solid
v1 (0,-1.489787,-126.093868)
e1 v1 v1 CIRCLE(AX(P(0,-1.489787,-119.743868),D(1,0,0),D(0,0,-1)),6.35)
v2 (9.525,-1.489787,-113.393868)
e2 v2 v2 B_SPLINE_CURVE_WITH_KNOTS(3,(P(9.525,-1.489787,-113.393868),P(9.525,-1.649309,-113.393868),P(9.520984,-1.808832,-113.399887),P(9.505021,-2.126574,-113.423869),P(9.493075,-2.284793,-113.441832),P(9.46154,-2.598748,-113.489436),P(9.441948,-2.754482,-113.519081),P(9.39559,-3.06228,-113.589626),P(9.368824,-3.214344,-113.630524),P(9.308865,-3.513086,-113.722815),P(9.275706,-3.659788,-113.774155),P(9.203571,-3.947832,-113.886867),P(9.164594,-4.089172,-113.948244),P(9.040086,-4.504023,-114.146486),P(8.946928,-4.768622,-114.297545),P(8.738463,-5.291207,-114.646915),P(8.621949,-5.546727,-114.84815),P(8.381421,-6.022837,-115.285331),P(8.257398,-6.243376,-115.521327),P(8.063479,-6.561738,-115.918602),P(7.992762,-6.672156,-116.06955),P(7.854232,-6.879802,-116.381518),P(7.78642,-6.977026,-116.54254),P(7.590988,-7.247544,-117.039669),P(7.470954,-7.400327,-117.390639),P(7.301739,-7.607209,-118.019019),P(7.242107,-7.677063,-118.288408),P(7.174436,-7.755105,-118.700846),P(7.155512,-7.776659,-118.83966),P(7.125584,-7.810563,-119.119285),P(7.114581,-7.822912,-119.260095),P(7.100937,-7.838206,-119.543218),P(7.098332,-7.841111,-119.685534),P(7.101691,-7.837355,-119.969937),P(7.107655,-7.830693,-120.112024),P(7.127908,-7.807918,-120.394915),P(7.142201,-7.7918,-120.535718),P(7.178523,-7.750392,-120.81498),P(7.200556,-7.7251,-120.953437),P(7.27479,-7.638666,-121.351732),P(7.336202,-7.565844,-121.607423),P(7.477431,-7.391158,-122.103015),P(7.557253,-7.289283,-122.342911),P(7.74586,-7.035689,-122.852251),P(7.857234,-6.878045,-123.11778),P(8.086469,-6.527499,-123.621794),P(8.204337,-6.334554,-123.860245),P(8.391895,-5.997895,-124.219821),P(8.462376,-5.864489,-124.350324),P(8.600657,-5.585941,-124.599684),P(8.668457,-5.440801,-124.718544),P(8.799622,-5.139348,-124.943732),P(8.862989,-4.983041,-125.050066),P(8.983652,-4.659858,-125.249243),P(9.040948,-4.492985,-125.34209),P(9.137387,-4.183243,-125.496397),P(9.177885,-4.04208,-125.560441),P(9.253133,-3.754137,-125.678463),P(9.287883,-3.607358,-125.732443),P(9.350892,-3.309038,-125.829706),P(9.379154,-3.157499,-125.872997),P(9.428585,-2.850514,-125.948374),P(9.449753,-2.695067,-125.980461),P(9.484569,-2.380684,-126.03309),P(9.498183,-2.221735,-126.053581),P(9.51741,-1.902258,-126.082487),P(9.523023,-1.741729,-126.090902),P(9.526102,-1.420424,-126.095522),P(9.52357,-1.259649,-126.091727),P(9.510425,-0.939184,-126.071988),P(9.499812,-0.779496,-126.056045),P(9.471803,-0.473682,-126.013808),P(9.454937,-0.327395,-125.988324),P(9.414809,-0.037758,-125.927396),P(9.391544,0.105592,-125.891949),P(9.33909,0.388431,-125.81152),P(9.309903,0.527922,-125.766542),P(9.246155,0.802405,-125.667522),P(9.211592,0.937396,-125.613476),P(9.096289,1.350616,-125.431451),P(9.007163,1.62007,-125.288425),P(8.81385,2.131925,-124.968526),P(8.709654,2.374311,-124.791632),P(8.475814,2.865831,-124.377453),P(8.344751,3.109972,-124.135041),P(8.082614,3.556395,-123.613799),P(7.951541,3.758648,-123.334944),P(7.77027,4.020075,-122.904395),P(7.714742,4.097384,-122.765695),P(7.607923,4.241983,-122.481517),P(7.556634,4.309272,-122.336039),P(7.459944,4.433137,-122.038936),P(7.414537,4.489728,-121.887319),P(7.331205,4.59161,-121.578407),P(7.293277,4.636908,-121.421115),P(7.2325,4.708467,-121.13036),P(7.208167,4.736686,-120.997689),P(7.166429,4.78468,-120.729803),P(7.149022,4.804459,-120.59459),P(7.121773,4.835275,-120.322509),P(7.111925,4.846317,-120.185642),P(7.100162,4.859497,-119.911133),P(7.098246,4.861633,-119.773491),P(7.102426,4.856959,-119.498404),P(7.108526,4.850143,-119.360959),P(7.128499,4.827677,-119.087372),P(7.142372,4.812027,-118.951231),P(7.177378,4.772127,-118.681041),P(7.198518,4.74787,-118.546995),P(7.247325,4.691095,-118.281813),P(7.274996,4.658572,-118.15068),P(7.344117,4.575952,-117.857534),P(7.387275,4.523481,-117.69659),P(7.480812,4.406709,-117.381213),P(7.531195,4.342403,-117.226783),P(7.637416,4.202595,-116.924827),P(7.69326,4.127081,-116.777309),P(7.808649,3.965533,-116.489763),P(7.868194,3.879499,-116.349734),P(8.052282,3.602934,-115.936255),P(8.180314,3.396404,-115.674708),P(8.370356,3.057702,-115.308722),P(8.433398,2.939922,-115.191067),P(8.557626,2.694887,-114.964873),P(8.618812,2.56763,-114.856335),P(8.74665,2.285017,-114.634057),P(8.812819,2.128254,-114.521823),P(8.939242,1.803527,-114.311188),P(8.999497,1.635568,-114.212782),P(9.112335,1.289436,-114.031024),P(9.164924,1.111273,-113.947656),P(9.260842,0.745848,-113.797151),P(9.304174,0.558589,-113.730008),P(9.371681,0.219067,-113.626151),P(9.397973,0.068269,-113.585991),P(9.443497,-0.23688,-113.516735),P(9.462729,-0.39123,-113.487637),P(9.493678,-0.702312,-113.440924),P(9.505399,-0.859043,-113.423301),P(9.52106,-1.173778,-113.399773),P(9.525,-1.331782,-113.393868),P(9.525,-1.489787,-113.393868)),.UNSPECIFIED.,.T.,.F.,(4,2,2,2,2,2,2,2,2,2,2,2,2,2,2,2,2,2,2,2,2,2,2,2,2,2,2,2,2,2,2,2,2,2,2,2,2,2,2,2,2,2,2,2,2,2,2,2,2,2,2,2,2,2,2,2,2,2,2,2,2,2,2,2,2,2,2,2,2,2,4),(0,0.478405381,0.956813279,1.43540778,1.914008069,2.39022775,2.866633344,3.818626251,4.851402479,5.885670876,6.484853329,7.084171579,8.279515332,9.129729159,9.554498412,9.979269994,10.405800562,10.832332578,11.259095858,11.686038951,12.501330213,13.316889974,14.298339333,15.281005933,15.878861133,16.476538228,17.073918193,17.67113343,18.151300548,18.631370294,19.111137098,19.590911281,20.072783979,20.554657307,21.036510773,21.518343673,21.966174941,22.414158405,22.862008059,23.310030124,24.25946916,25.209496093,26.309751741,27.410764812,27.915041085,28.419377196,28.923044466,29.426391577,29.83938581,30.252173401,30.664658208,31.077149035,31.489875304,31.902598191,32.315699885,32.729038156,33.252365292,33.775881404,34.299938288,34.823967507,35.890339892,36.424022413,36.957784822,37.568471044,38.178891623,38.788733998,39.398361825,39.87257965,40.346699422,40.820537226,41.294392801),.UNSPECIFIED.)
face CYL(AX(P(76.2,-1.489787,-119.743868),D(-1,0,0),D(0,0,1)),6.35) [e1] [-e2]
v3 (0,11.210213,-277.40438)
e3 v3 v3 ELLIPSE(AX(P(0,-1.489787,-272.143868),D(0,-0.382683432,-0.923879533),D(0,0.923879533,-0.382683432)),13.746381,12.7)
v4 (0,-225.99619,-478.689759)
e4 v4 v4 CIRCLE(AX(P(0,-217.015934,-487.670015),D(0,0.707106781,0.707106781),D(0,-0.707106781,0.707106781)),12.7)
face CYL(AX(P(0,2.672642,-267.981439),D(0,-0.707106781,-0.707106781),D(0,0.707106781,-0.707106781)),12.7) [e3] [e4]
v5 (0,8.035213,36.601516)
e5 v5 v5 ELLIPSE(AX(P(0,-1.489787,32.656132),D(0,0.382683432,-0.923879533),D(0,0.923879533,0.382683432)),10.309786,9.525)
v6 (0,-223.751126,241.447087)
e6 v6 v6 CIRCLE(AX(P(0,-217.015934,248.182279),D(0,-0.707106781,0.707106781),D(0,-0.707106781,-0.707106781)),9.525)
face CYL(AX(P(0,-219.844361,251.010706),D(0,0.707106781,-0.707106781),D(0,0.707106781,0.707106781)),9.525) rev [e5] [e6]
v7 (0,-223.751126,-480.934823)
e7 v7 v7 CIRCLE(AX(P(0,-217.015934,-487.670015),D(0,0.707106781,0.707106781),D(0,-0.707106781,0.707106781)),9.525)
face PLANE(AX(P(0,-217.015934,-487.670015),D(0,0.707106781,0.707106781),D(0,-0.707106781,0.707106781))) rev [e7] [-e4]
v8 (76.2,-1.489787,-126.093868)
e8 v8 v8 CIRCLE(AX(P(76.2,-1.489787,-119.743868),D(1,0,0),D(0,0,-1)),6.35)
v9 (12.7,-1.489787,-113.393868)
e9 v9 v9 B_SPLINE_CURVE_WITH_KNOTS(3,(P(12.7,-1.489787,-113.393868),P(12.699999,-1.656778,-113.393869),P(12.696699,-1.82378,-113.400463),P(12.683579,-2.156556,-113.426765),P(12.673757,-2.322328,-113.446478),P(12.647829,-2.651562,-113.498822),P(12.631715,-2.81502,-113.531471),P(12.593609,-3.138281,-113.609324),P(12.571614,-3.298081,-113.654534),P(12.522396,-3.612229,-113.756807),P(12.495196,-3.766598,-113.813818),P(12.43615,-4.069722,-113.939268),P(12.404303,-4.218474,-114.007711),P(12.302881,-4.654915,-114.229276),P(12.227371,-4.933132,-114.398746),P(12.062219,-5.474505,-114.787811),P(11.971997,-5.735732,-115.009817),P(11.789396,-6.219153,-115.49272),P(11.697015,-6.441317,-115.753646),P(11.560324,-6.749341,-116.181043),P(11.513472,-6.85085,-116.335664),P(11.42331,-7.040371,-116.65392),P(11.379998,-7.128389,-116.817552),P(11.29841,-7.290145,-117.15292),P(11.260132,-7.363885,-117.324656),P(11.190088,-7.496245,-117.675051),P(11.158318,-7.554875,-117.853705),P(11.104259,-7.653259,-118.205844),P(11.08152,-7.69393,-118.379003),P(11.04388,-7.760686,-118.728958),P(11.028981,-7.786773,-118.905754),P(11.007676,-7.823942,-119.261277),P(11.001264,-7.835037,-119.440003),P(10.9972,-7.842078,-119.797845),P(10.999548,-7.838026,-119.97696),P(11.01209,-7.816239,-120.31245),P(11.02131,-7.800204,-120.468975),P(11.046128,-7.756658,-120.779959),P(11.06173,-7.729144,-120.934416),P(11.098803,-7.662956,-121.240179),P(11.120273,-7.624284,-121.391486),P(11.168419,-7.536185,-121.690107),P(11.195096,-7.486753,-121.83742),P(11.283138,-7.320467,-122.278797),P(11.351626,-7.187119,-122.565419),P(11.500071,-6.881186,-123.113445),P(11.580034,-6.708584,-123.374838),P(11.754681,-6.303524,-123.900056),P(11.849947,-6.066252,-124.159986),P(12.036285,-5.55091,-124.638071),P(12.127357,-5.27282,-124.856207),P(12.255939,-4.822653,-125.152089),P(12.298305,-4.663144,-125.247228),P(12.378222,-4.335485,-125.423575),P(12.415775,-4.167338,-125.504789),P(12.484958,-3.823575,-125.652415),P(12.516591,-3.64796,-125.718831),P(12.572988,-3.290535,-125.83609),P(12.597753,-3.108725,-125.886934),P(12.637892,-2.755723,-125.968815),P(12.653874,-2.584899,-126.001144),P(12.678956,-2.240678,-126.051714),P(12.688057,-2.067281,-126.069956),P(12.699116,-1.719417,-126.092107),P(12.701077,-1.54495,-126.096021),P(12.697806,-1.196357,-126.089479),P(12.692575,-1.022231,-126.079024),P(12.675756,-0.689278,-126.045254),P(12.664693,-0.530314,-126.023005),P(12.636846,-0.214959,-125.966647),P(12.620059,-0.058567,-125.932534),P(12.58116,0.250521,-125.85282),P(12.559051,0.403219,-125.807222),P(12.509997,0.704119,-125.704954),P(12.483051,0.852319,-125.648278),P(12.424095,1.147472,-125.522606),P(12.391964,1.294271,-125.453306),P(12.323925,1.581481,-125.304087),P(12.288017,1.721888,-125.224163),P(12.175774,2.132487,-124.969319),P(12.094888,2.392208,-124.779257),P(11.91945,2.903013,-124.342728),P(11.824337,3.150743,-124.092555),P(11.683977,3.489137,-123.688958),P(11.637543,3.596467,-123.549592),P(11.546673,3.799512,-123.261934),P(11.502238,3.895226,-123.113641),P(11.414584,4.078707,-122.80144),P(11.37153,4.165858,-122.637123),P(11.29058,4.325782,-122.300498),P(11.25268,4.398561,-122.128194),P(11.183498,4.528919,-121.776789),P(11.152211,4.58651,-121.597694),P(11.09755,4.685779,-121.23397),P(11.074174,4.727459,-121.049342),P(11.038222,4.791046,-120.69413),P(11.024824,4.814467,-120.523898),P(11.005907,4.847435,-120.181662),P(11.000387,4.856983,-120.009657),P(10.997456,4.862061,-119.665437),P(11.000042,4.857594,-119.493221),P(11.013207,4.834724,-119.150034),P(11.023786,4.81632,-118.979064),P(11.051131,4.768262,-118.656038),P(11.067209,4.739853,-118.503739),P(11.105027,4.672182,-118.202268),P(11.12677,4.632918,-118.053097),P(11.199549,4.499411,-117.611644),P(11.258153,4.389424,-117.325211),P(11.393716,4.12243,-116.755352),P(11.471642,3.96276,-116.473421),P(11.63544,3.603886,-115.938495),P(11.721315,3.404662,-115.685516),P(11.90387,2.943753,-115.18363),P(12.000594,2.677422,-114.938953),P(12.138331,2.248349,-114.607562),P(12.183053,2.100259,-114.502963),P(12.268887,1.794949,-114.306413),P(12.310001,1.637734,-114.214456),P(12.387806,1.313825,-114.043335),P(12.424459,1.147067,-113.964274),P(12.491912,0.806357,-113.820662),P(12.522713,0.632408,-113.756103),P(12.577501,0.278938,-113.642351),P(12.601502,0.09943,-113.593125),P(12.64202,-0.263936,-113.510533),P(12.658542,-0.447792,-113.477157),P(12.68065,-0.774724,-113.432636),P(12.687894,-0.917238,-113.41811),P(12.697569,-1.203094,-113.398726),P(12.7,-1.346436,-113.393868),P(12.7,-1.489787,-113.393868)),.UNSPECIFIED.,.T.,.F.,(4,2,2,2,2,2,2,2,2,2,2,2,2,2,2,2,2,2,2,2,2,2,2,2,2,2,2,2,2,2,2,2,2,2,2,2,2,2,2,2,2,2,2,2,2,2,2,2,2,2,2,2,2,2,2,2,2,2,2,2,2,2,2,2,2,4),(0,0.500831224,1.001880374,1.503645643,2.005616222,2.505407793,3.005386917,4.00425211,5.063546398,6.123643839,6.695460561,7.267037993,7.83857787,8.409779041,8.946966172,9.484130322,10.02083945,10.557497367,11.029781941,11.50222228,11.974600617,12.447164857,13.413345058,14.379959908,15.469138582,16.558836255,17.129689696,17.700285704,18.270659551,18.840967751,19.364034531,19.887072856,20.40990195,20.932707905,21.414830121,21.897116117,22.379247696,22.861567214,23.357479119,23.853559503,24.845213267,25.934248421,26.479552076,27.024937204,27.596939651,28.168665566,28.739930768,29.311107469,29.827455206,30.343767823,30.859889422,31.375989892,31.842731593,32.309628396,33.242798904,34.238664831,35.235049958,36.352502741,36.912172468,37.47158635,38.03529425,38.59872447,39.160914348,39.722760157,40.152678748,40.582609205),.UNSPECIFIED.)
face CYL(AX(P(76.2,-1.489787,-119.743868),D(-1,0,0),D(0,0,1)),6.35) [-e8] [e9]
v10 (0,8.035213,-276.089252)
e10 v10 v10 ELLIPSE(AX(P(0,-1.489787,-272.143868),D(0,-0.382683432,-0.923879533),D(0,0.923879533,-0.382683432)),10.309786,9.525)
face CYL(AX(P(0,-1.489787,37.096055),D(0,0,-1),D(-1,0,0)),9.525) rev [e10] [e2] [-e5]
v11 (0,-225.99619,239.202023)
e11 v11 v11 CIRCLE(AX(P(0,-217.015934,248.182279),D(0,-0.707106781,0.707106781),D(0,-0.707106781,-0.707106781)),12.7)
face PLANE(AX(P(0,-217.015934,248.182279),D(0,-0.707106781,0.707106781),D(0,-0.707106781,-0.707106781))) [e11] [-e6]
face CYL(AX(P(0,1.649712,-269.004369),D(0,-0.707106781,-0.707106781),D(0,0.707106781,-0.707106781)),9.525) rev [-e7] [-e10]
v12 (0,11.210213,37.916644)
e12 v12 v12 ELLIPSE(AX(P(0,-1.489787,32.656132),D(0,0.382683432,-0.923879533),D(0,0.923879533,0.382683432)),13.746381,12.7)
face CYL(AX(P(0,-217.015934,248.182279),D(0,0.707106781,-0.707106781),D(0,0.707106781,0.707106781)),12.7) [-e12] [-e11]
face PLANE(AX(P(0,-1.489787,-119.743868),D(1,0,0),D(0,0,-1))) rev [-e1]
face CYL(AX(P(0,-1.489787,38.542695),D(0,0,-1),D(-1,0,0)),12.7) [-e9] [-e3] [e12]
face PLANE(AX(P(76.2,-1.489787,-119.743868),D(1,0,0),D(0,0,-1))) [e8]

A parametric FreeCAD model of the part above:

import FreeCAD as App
import Part
import Sketcher

V = App.Vector
Q = App.Units.Quantity

doc = App.newDocument("Part")
body = doc.addObject("PartDesign::Body", "Body")

sketch1 = doc.addObject("Sketcher::SketchObject", "Sketch")
body.addObject(sketch1)
sketch1.Placement = App.Placement(V(0, -217.015934, 248.182279), App.Rotation(V(0, 0.707106781, 0.707106781), V(0.999999999, 0, 0), V(0, 0.707106781, -0.707106781), "ZXY"))
sketch1.addGeometry(Part.Circle(V(0, 0, 0), V(0, 0, 1), 12.7), False)
sketch1.addConstraint(Sketcher.Constraint("Coincident", 0, 3, -1, 1))
sketch1.addConstraint(Sketcher.Constraint("Diameter", 0, Q("1 in")))

sketch2 = doc.addObject("Sketcher::SketchObject", "Sketch001")
body.addObject(sketch2)
sketch2.AttachmentSupport = (doc.YZ_Plane, [""])
sketch2.MapMode = "FlatFace"
sketch2.addGeometry(Part.LineSegment(V(-217.015934, 248.182279, 0), V(-1.489787, 32.656132, 0)), False)
sketch2.addGeometry(Part.LineSegment(V(-1.489787, 32.656132, 0), V(-1.489787, -272.143868, 0)), False)
sketch2.addGeometry(Part.LineSegment(V(-1.489787, -272.143868, 0), V(-217.015934, -487.670015, 0)), False)
sketch2.addConstraint(Sketcher.Constraint("Coincident", 0, 2, 1, 1))
sketch2.addConstraint(Sketcher.Constraint("Coincident", 1, 2, 2, 1))
sketch2.addConstraint(Sketcher.Constraint("Vertical", 1))
sketch2.addConstraint(Sketcher.Constraint("Perpendicular", 0, 2))
sketch2.addConstraint(Sketcher.Constraint("Vertical", 0, 1, 2, 2))
sketch2.addConstraint(Sketcher.Constraint("Equal", 0, 2))
sketch2.addConstraint(Sketcher.Constraint("DistanceY", 1, 2, 1, 1, Q("12 in")))
sketch2.addConstraint(Sketcher.Constraint("Distance", 0, Q("12 in")))
sketch2.addConstraint(Sketcher.Constraint("DistanceY", -1, 1, 0, 1, Q("248.182279 mm")))
sketch2.addConstraint(Sketcher.Constraint("DistanceX", 0, 1, -1, 1, Q("217.015934 mm")))
doc.recompute()

additivepipe = doc.addObject("PartDesign::AdditivePipe", "AdditivePipe")
body.addObject(additivepipe)
additivepipe.Profile = sketch1
additivepipe.Spine = (sketch2, ["Edge1", "Edge2", "Edge3"])
additivepipe.Transition = "Right corner"

sketch3 = doc.addObject("Sketcher::SketchObject", "Sketch002")
body.addObject(sketch3)
sketch3.Placement = App.Placement(V(0, -217.015934, 248.182279), App.Rotation(V(0, 0.707106781, 0.707106781), V(0.999999999, 0, 0), V(0, 0.707106781, -0.707106781), "ZXY"))
sketch3.addGeometry(Part.Circle(V(0, 0, 0), V(0, 0, 1), 9.525), False)
sketch3.addConstraint(Sketcher.Constraint("Coincident", 0, 3, -1, 1))
sketch3.addConstraint(Sketcher.Constraint("Diameter", 0, Q("0.75 in")))

sketch4 = doc.addObject("Sketcher::SketchObject", "Sketch003")
body.addObject(sketch4)
sketch4.AttachmentSupport = (doc.YZ_Plane, [""])
sketch4.MapMode = "FlatFace"
sketch4.addGeometry(Part.LineSegment(V(-217.015934, 248.182279, 0), V(-1.489787, 32.656132, 0)), False)
sketch4.addGeometry(Part.LineSegment(V(-1.489787, 32.656132, 0), V(-1.489787, -272.143868, 0)), False)
sketch4.addGeometry(Part.LineSegment(V(-1.489787, -272.143868, 0), V(-217.015934, -487.670015, 0)), False)
sketch4.addConstraint(Sketcher.Constraint("Coincident", 0, 2, 1, 1))
sketch4.addConstraint(Sketcher.Constraint("Coincident", 1, 2, 2, 1))
sketch4.addConstraint(Sketcher.Constraint("Vertical", 1))
sketch4.addConstraint(Sketcher.Constraint("Perpendicular", 0, 2))
sketch4.addConstraint(Sketcher.Constraint("Vertical", 0, 1, 2, 2))
sketch4.addConstraint(Sketcher.Constraint("Equal", 0, 2))
sketch4.addConstraint(Sketcher.Constraint("DistanceY", 1, 2, 1, 1, Q("12 in")))
sketch4.addConstraint(Sketcher.Constraint("Distance", 0, Q("12 in")))
sketch4.addConstraint(Sketcher.Constraint("DistanceY", -1, 1, 0, 1, Q("248.182279 mm")))
sketch4.addConstraint(Sketcher.Constraint("DistanceX", 0, 1, -1, 1, Q("217.015934 mm")))
doc.recompute()

subtractivepipe = doc.addObject("PartDesign::SubtractivePipe", "SubtractivePipe")
body.addObject(subtractivepipe)
subtractivepipe.Profile = sketch3
subtractivepipe.Spine = (sketch4, ["Edge1", "Edge2", "Edge3"])
subtractivepipe.Transition = "Right corner"

sketch5 = doc.addObject("Sketcher::SketchObject", "Sketch004")
body.addObject(sketch5)
sketch5.AttachmentSupport = (doc.YZ_Plane, [""])
sketch5.MapMode = "FlatFace"
sketch5.addGeometry(Part.Circle(V(-1.489787, -119.743868, 0), V(0, 0, 1), 6.35), False)
sketch5.addConstraint(Sketcher.Constraint("Diameter", 0, Q("0.5 in")))
sketch5.addConstraint(Sketcher.Constraint("DistanceY", 0, 3, -1, 1, Q("119.743868 mm")))
sketch5.addConstraint(Sketcher.Constraint("DistanceX", 0, 3, -1, 1, Q("1.489787 mm")))
pad1 = doc.addObject("PartDesign::Pad", "Pad")
body.addObject(pad1)
pad1.Profile = sketch5
pad1.Length = Q("3 in")

doc.recompute()
